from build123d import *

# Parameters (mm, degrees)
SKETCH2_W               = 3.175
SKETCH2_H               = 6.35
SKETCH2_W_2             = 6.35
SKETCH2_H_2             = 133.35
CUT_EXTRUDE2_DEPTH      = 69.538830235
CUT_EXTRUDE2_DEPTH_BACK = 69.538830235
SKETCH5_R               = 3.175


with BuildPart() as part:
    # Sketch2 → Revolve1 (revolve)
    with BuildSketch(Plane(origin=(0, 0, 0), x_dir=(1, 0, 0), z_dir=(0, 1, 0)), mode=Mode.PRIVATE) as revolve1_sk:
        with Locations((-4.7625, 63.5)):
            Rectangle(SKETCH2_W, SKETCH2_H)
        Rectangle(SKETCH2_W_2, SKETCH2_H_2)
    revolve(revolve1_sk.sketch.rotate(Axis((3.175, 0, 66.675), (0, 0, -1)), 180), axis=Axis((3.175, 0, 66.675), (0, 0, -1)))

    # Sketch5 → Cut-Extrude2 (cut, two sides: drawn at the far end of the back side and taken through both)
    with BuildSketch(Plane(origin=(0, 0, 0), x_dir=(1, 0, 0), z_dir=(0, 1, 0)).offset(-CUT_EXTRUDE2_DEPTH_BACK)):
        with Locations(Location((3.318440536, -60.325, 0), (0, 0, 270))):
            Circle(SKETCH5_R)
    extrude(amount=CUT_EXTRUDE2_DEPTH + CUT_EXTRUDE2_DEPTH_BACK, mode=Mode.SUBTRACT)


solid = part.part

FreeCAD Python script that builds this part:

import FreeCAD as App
import Part
import Sketcher
from FreeCAD import Vector
Q = App.Units.Quantity


def add_polygon(sketch, points):
    """Adds a closed chain of lines whose ends are joined by coincident constraints."""
    first, n = sketch.GeometryCount, len(points)
    for a, b in zip(points, points[1:] + points[:1]):
        sketch.addGeometry(Part.LineSegment(App.Vector(*a, 0), App.Vector(*b, 0)), False)
    for i in range(n):
        sketch.addConstraint(Sketcher.Constraint("Coincident", first + i, 2, first + (i + 1) % n, 1))

doc = App.newDocument("Part")
body = doc.addObject("PartDesign::Body", "Body")

# Sketch on XZ plane
sketch1 = doc.addObject("Sketcher::SketchObject", "Sketch")
body.addObject(sketch1)
sketch1.AttachmentSupport = (doc.XZ_Plane, [""])
sketch1.MapMode = "FlatFace"
add_polygon(sketch1, [(-6.3, -66.7), (-6.3, -60.3), (-3.2, -60.3), (-3.2, 66.7), (3.2, 66.7), (3.2, -66.7)])  # lines 0-5
sketch1.addGeometry(Part.LineSegment(Vector(3.2, 66.7, 0), Vector(3.2, -66.7, 0)), True)  # axis
sketch1.addConstraint([
    Sketcher.Constraint("Vertical", 0),
    Sketcher.Constraint("Horizontal", 1),
    Sketcher.Constraint("Vertical", 2),
    Sketcher.Constraint("Horizontal", 3),
    Sketcher.Constraint("Vertical", 4),
    Sketcher.Constraint("Horizontal", 5),
    Sketcher.Constraint("Vertical", 6),
    Sketcher.Constraint("Coincident", 6, 1, 3, 2),
    Sketcher.Constraint("Symmetric", 2, 2, 4, 2, -1, 1),
    Sketcher.Constraint("Horizontal", 5, 2, 6, 2),
    Sketcher.Constraint("Equal", 3, 0),
    Sketcher.Constraint("DistanceY", 2, 1, 2, 2, Q("5 in")),
    Sketcher.Constraint("DistanceX", 3, 1, 3, 2, Q("0.25 in")),
    Sketcher.Constraint("DistanceX", 1, 1, 1, 2, Q("0.125 in")),
])
revolution = doc.addObject("PartDesign::Revolution", "Revolution")
body.addObject(revolution)
revolution.Profile = sketch1
revolution.ReferenceAxis = (sketch1, ["Axis0"])
revolution.Angle = 360

# Sketch on XZ plane
sketch2 = doc.addObject("Sketcher::SketchObject", "Sketch001")
body.addObject(sketch2)
sketch2.AttachmentSupport = (doc.XZ_Plane, [""])
sketch2.MapMode = "FlatFace"
sketch2.addGeometry(Part.Circle(Vector(3.3, 60.3, 0), Vector(0, 0, 1), 3.2), False)
sketch2.addConstraint([
    Sketcher.Constraint("Diameter", 0, Q("0.25 in")),
    Sketcher.Constraint("DistanceY", -1, 1, 0, 3, Q("2.375 in")),
    Sketcher.Constraint("DistanceX", -1, 1, 0, 3, 3.318441),
])
pocket1 = doc.addObject("PartDesign::Pocket", "Pocket")
body.addObject(pocket1)
pocket1.Profile = sketch2
pocket1.Type = "ThroughAll"
pocket1.Midplane = True

doc.recompute()
